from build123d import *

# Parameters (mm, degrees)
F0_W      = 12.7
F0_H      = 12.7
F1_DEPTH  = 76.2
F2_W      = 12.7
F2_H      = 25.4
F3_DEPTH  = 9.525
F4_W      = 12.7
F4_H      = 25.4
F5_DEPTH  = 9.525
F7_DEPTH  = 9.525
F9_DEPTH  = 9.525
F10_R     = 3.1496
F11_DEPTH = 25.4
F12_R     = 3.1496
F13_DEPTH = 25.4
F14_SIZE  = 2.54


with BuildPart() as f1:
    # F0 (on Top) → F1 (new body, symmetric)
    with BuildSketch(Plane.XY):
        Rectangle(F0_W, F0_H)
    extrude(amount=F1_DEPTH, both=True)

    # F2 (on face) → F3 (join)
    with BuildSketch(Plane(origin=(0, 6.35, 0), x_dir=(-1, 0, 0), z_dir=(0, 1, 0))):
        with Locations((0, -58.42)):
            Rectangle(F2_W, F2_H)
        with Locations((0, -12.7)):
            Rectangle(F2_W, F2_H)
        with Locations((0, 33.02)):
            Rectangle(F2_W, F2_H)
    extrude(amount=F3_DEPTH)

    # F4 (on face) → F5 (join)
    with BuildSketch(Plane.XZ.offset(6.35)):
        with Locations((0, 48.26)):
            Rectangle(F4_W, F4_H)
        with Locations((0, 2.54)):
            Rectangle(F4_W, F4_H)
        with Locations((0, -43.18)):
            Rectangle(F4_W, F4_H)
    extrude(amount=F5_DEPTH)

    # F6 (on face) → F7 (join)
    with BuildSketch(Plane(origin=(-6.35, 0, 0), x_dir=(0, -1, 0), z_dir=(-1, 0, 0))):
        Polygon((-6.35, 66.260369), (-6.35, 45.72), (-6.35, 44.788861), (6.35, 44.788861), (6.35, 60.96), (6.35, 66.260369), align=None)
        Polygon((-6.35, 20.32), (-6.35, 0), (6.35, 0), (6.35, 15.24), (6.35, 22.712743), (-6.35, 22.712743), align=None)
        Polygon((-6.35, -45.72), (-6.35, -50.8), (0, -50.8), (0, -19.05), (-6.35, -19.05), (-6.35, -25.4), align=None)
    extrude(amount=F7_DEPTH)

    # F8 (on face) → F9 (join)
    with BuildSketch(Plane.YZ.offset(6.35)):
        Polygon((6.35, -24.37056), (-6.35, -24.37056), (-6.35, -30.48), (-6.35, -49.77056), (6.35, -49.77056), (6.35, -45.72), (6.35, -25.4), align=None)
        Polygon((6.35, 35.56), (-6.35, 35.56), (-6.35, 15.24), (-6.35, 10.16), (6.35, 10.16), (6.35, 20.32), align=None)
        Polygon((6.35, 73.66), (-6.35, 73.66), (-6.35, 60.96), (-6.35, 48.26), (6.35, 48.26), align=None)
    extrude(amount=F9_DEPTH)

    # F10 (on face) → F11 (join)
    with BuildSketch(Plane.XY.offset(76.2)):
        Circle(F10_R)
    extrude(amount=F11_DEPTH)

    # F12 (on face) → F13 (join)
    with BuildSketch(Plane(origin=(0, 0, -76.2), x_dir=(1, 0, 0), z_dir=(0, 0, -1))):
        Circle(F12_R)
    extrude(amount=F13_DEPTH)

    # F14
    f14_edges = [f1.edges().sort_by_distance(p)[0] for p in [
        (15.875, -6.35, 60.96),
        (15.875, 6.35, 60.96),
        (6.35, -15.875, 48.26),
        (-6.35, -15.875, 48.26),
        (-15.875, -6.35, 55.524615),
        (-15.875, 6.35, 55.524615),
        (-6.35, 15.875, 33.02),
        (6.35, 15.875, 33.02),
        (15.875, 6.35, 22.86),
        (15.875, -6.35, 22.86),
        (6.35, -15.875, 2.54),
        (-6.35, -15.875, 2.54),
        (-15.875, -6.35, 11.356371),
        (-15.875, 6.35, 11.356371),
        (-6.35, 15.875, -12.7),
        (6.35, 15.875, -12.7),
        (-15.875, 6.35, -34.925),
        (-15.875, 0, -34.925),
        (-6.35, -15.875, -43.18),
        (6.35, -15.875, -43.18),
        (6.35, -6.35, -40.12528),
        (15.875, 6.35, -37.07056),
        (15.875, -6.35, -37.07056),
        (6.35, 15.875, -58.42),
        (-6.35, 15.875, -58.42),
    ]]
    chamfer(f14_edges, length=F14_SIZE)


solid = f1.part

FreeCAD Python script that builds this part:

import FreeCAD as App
import Part
import Sketcher
from FreeCAD import Vector
Q = App.Units.Quantity


def edges_at(feature, points):
    """Names of the edges that pass closest to the given points."""
    edges = feature.Shape.Edges
    near = lambda p: min(range(len(edges)), key=lambda i: edges[i].distToShape(Part.Vertex(*p))[0])
    return sorted({f"Edge{near(p) + 1}" for p in points})

doc = App.newDocument("Part")
body = doc.addObject("PartDesign::Body", "Body")

# Sketch on XY plane
sketch1 = doc.addObject("Sketcher::SketchObject", "Sketch")
body.addObject(sketch1)
sketch1.AttachmentSupport = (doc.XY_Plane, [""])
sketch1.MapMode = "FlatFace"
sketch1.addGeometry(Part.LineSegment(Vector(-6, 6, 0), Vector(-6, -6, 0)), False)
sketch1.addGeometry(Part.LineSegment(Vector(-6, -6, 0), Vector(6, -6, 0)), False)
sketch1.addGeometry(Part.LineSegment(Vector(6, -6, 0), Vector(6, 6, 0)), False)
sketch1.addGeometry(Part.LineSegment(Vector(6, 6, 0), Vector(-6, 6, 0)), False)
sketch1.addConstraint(Sketcher.Constraint("Coincident", 0, 2, 1, 1))
sketch1.addConstraint(Sketcher.Constraint("Coincident", 1, 2, 2, 1))
sketch1.addConstraint(Sketcher.Constraint("Coincident", 2, 2, 3, 1))
sketch1.addConstraint(Sketcher.Constraint("Coincident", 3, 2, 0, 1))
sketch1.addConstraint(Sketcher.Constraint("Vertical", 0))
sketch1.addConstraint(Sketcher.Constraint("Horizontal", 1))
sketch1.addConstraint(Sketcher.Constraint("Vertical", 2))
sketch1.addConstraint(Sketcher.Constraint("Horizontal", 3))
sketch1.addConstraint(Sketcher.Constraint("Symmetric", 0, 2, 2, 2, -1, 1))
sketch1.addConstraint(Sketcher.Constraint("Equal", 3, 0))
sketch1.addConstraint(Sketcher.Constraint("DistanceX", 1, 1, 1, 2, Q("0.5 in")))
pad1 = doc.addObject("PartDesign::Pad", "Pad")
body.addObject(pad1)
pad1.Profile = sketch1
pad1.Length = Q("6 in")
pad1.Midplane = True

# Sketch on XZ plane
sketch2 = doc.addObject("Sketcher::SketchObject", "Sketch001")
body.addObject(sketch2)
sketch2.AttachmentSupport = (doc.XZ_Plane, [""])
sketch2.MapMode = "FlatFace"
sketch2.AttachmentOffset = App.Placement(Vector(0, 0, -0.25 * 25.4), App.Rotation())
sketch2.addGeometry(Part.LineSegment(Vector(6, -46, 0), Vector(6, -71, 0)), False)
sketch2.addGeometry(Part.LineSegment(Vector(6, -71, 0), Vector(-6, -71, 0)), False)
sketch2.addGeometry(Part.LineSegment(Vector(-6, -71, 0), Vector(-6, -46, 0)), False)
sketch2.addGeometry(Part.LineSegment(Vector(-6, -46, 0), Vector(6, -46, 0)), False)
sketch2.addGeometry(Part.LineSegment(Vector(6, 0, 0), Vector(6, -25, 0)), False)
sketch2.addGeometry(Part.LineSegment(Vector(6, -25, 0), Vector(-6, -25, 0)), False)
sketch2.addGeometry(Part.LineSegment(Vector(-6, -25, 0), Vector(-6, 0, 0)), False)
sketch2.addGeometry(Part.LineSegment(Vector(-6, 0, 0), Vector(6, 0, 0)), False)
sketch2.addGeometry(Part.LineSegment(Vector(6, 46, 0), Vector(6, 20, 0)), False)
sketch2.addGeometry(Part.LineSegment(Vector(6, 20, 0), Vector(-6, 20, 0)), False)
sketch2.addGeometry(Part.LineSegment(Vector(-6, 20, 0), Vector(-6, 46, 0)), False)
sketch2.addGeometry(Part.LineSegment(Vector(-6, 46, 0), Vector(6, 46, 0)), False)
sketch2.addConstraint(Sketcher.Constraint("Coincident", 0, 2, 1, 1))
sketch2.addConstraint(Sketcher.Constraint("Coincident", 1, 2, 2, 1))
sketch2.addConstraint(Sketcher.Constraint("Coincident", 2, 2, 3, 1))
sketch2.addConstraint(Sketcher.Constraint("Coincident", 3, 2, 0, 1))
sketch2.addConstraint(Sketcher.Constraint("Coincident", 4, 2, 5, 1))
sketch2.addConstraint(Sketcher.Constraint("Coincident", 5, 2, 6, 1))
sketch2.addConstraint(Sketcher.Constraint("Coincident", 6, 2, 7, 1))
sketch2.addConstraint(Sketcher.Constraint("Coincident", 7, 2, 4, 1))
sketch2.addConstraint(Sketcher.Constraint("Coincident", 8, 2, 9, 1))
sketch2.addConstraint(Sketcher.Constraint("Coincident", 9, 2, 10, 1))
sketch2.addConstraint(Sketcher.Constraint("Coincident", 10, 2, 11, 1))
sketch2.addConstraint(Sketcher.Constraint("Coincident", 11, 2, 8, 1))
sketch2.addConstraint(Sketcher.Constraint("Vertical", 0))
sketch2.addConstraint(Sketcher.Constraint("Horizontal", 1))
sketch2.addConstraint(Sketcher.Constraint("Vertical", 2))
sketch2.addConstraint(Sketcher.Constraint("Horizontal", 3))
sketch2.addConstraint(Sketcher.Constraint("Vertical", 4))
sketch2.addConstraint(Sketcher.Constraint("Horizontal", 5))
sketch2.addConstraint(Sketcher.Constraint("Vertical", 6))
sketch2.addConstraint(Sketcher.Constraint("Horizontal", 7))
sketch2.addConstraint(Sketcher.Constraint("Vertical", 8))
sketch2.addConstraint(Sketcher.Constraint("Horizontal", 9))
sketch2.addConstraint(Sketcher.Constraint("Vertical", 10))
sketch2.addConstraint(Sketcher.Constraint("Horizontal", 11))
sketch2.addConstraint(Sketcher.Constraint("Symmetric", 6, 2, 7, 2, -1, 1))
sketch2.addConstraint(Sketcher.Constraint("Symmetric", 3, 2, 10, 2, -1, 1))
sketch2.addConstraint(Sketcher.Constraint("Vertical", 3, 2, 4, 2))
sketch2.addConstraint(Sketcher.Constraint("Vertical", 2, 2, 5, 2))
sketch2.addConstraint(Sketcher.Constraint("Vertical", 7, 2, 8, 2))
sketch2.addConstraint(Sketcher.Constraint("Equal", 2, 4))
sketch2.addConstraint(Sketcher.Constraint("Equal", 6, 8))
sketch2.addConstraint(Sketcher.Constraint("DistanceY", 0, 2, 0, 1, Q("1 in")))
sketch2.addConstraint(Sketcher.Constraint("DistanceX", 1, 2, 1, 1, Q("0.5 in")))
sketch2.addConstraint(Sketcher.Constraint("DistanceY", 0, 2, -1, 1, Q("2.8 in")))
pad2 = doc.addObject("PartDesign::Pad", "Pad001")
body.addObject(pad2)
pad2.Profile = sketch2
pad2.Length = Q("0.375 in")
pad2.Reversed = True

# Sketch on XZ plane
sketch3 = doc.addObject("Sketcher::SketchObject", "Sketch002")
body.addObject(sketch3)
sketch3.AttachmentSupport = (doc.XZ_Plane, [""])
sketch3.MapMode = "FlatFace"
sketch3.AttachmentOffset = App.Placement(Vector(0, 0, 0.25 * 25.4), App.Rotation())
sketch3.addGeometry(Part.LineSegment(Vector(-6, 61, 0), Vector(-6, 36, 0)), False)
sketch3.addGeometry(Part.LineSegment(Vector(-6, 36, 0), Vector(6, 36, 0)), False)
sketch3.addGeometry(Part.LineSegment(Vector(6, 36, 0), Vector(6, 61, 0)), False)
sketch3.addGeometry(Part.LineSegment(Vector(6, 61, 0), Vector(-6, 61, 0)), False)
sketch3.addGeometry(Part.LineSegment(Vector(-6, 15, 0), Vector(-6, -10, 0)), False)
sketch3.addGeometry(Part.LineSegment(Vector(-6, -10, 0), Vector(6, -10, 0)), False)
sketch3.addGeometry(Part.LineSegment(Vector(6, -10, 0), Vector(6, 15, 0)), False)
sketch3.addGeometry(Part.LineSegment(Vector(6, 15, 0), Vector(-6, 15, 0)), False)
sketch3.addGeometry(Part.LineSegment(Vector(-6, -30, 0), Vector(-6, -56, 0)), False)
sketch3.addGeometry(Part.LineSegment(Vector(-6, -56, 0), Vector(6, -56, 0)), False)
sketch3.addGeometry(Part.LineSegment(Vector(6, -56, 0), Vector(6, -30, 0)), False)
sketch3.addGeometry(Part.LineSegment(Vector(6, -30, 0), Vector(-6, -30, 0)), False)
sketch3.addConstraint(Sketcher.Constraint("Coincident", 0, 2, 1, 1))
sketch3.addConstraint(Sketcher.Constraint("Coincident", 1, 2, 2, 1))
sketch3.addConstraint(Sketcher.Constraint("Coincident", 2, 2, 3, 1))
sketch3.addConstraint(Sketcher.Constraint("Coincident", 3, 2, 0, 1))
sketch3.addConstraint(Sketcher.Constraint("Coincident", 4, 2, 5, 1))
sketch3.addConstraint(Sketcher.Constraint("Coincident", 5, 2, 6, 1))
sketch3.addConstraint(Sketcher.Constraint("Coincident", 6, 2, 7, 1))
sketch3.addConstraint(Sketcher.Constraint("Coincident", 7, 2, 4, 1))
sketch3.addConstraint(Sketcher.Constraint("Coincident", 8, 2, 9, 1))
sketch3.addConstraint(Sketcher.Constraint("Coincident", 9, 2, 10, 1))
sketch3.addConstraint(Sketcher.Constraint("Coincident", 10, 2, 11, 1))
sketch3.addConstraint(Sketcher.Constraint("Coincident", 11, 2, 8, 1))
sketch3.addConstraint(Sketcher.Constraint("Vertical", 0))
sketch3.addConstraint(Sketcher.Constraint("Horizontal", 1))
sketch3.addConstraint(Sketcher.Constraint("Vertical", 2))
sketch3.addConstraint(Sketcher.Constraint("Horizontal", 3))
sketch3.addConstraint(Sketcher.Constraint("Vertical", 4))
sketch3.addConstraint(Sketcher.Constraint("Horizontal", 5))
sketch3.addConstraint(Sketcher.Constraint("Vertical", 6))
sketch3.addConstraint(Sketcher.Constraint("Horizontal", 7))
sketch3.addConstraint(Sketcher.Constraint("Vertical", 8))
sketch3.addConstraint(Sketcher.Constraint("Horizontal", 9))
sketch3.addConstraint(Sketcher.Constraint("Vertical", 10))
sketch3.addConstraint(Sketcher.Constraint("Horizontal", 11))
sketch3.addConstraint(Sketcher.Constraint("Vertical", 3, 2, 4, 2))
sketch3.addConstraint(Sketcher.Constraint("Vertical", 2, 2, 5, 2))
sketch3.addConstraint(Sketcher.Constraint("Vertical", 7, 2, 8, 2))
sketch3.addConstraint(Sketcher.Constraint("Vertical", 6, 2, 9, 2))
sketch3.addConstraint(Sketcher.Constraint("Equal", 2, 4))
sketch3.addConstraint(Sketcher.Constraint("Equal", 6, 8))
sketch3.addConstraint(Sketcher.Constraint("DistanceY", 0, 2, 0, 1, Q("1 in")))
sketch3.addConstraint(Sketcher.Constraint("DistanceX", 1, 1, 1, 2, Q("0.5 in")))
sketch3.addConstraint(Sketcher.Constraint("DistanceY", -1, 1, 0, 2, Q("1.4 in")))
sketch3.addConstraint(Sketcher.Constraint("DistanceY", 4, 2, -1, 1, Q("0.4 in")))
sketch3.addConstraint(Sketcher.Constraint("DistanceY", 8, 2, -1, 1, Q("2.2 in")))
sketch3.addConstraint(Sketcher.Constraint("DistanceX", 0, 2, -1, 1, Q("0.25 in")))
pad3 = doc.addObject("PartDesign::Pad", "Pad002")
body.addObject(pad3)
pad3.Profile = sketch3
pad3.Length = Q("0.375 in")

# Sketch on YZ plane
sketch4 = doc.addObject("Sketcher::SketchObject", "Sketch003")
body.addObject(sketch4)
sketch4.AttachmentSupport = (doc.YZ_Plane, [""])
sketch4.MapMode = "FlatFace"
sketch4.AttachmentOffset = App.Placement(Vector(0, 0, -0.25 * 25.4), App.Rotation())
sketch4.addGeometry(Part.LineSegment(Vector(6, 66, 0), Vector(6, 45, 0)), False)
sketch4.addGeometry(Part.LineSegment(Vector(6, 45, 0), Vector(-6, 45, 0)), False)
sketch4.addGeometry(Part.LineSegment(Vector(-6, 45, 0), Vector(-6, 66, 0)), False)
sketch4.addGeometry(Part.LineSegment(Vector(-6, 66, 0), Vector(6, 66, 0)), False)
sketch4.addGeometry(Part.LineSegment(Vector(6, 0, 0), Vector(-6, 0, 0)), False)
sketch4.addGeometry(Part.LineSegment(Vector(-6, 0, 0), Vector(-6, 23, 0)), False)
sketch4.addGeometry(Part.LineSegment(Vector(-6, 23, 0), Vector(6, 23, 0)), False)
sketch4.addGeometry(Part.LineSegment(Vector(6, 23, 0), Vector(6, 0, 0)), False)
sketch4.addGeometry(Part.LineSegment(Vector(6, -51, 0), Vector(0, -51, 0)), False)
sketch4.addGeometry(Part.LineSegment(Vector(0, -51, 0), Vector(0, -19, 0)), False)
sketch4.addGeometry(Part.LineSegment(Vector(0, -19, 0), Vector(6, -19, 0)), False)
sketch4.addGeometry(Part.LineSegment(Vector(6, -19, 0), Vector(6, -51, 0)), False)
sketch4.addConstraint(Sketcher.Constraint("Coincident", 0, 2, 1, 1))
sketch4.addConstraint(Sketcher.Constraint("Coincident", 1, 2, 2, 1))
sketch4.addConstraint(Sketcher.Constraint("Coincident", 2, 2, 3, 1))
sketch4.addConstraint(Sketcher.Constraint("Coincident", 3, 2, 0, 1))
sketch4.addConstraint(Sketcher.Constraint("Coincident", 4, 2, 5, 1))
sketch4.addConstraint(Sketcher.Constraint("Coincident", 5, 2, 6, 1))
sketch4.addConstraint(Sketcher.Constraint("Coincident", 6, 2, 7, 1))
sketch4.addConstraint(Sketcher.Constraint("Coincident", 7, 2, 4, 1))
sketch4.addConstraint(Sketcher.Constraint("Coincident", 8, 2, 9, 1))
sketch4.addConstraint(Sketcher.Constraint("Coincident", 9, 2, 10, 1))
sketch4.addConstraint(Sketcher.Constraint("Coincident", 10, 2, 11, 1))
sketch4.addConstraint(Sketcher.Constraint("Coincident", 11, 2, 8, 1))
sketch4.addConstraint(Sketcher.Constraint("Vertical", 0))
sketch4.addConstraint(Sketcher.Constraint("Horizontal", 1))
sketch4.addConstraint(Sketcher.Constraint("Vertical", 2))
sketch4.addConstraint(Sketcher.Constraint("Horizontal", 3))
sketch4.addConstraint(Sketcher.Constraint("Horizontal", 4))
sketch4.addConstraint(Sketcher.Constraint("Vertical", 5))
sketch4.addConstraint(Sketcher.Constraint("Horizontal", 6))
sketch4.addConstraint(Sketcher.Constraint("Vertical", 7))
sketch4.addConstraint(Sketcher.Constraint("Horizontal", 8))
sketch4.addConstraint(Sketcher.Constraint("Vertical", 9))
sketch4.addConstraint(Sketcher.Constraint("Horizontal", 10))
sketch4.addConstraint(Sketcher.Constraint("Vertical", 11))
sketch4.addConstraint(Sketcher.Constraint("Symmetric", 4, 2, 7, 2, -1, 1))
sketch4.addConstraint(Sketcher.Constraint("PointOnObject", 8, 2, -2))
sketch4.addConstraint(Sketcher.Constraint("Vertical", 2, 2, 4, 2))
sketch4.addConstraint(Sketcher.Constraint("Vertical", 3, 2, 6, 2))
sketch4.addConstraint(Sketcher.Constraint("Vertical", 7, 2, 10, 2))
sketch4.addConstraint(Sketcher.Constraint("DistanceX", 1, 2, 1, 1, Q("0.5 in")))
sketch4.addConstraint(Sketcher.Constraint("DistanceY", 8, 2, -1, 1, Q("2 in")))
sketch4.addConstraint(Sketcher.Constraint("DistanceY", 9, 1, 9, 2, Q("1.25 in")))
sketch4.addConstraint(Sketcher.Constraint("DistanceY", 0, 2, 0, 1, 21.471508))
sketch4.addConstraint(Sketcher.Constraint("DistanceY", 5, 1, 5, 2, 22.712743))
sketch4.addConstraint(Sketcher.Constraint("DistanceY", -1, 1, 0, 2, 44.788861))
pad4 = doc.addObject("PartDesign::Pad", "Pad003")
body.addObject(pad4)
pad4.Profile = sketch4
pad4.Length = Q("0.375 in")
pad4.Reversed = True

# Sketch on YZ plane
sketch5 = doc.addObject("Sketcher::SketchObject", "Sketch004")
body.addObject(sketch5)
sketch5.AttachmentSupport = (doc.YZ_Plane, [""])
sketch5.MapMode = "FlatFace"
sketch5.AttachmentOffset = App.Placement(Vector(0, 0, 0.25 * 25.4), App.Rotation())
sketch5.addGeometry(Part.LineSegment(Vector(6, -24, 0), Vector(-6, -24, 0)), False)
sketch5.addGeometry(Part.LineSegment(Vector(-6, -24, 0), Vector(-6, -50, 0)), False)
sketch5.addGeometry(Part.LineSegment(Vector(-6, -50, 0), Vector(6, -50, 0)), False)
sketch5.addGeometry(Part.LineSegment(Vector(6, -50, 0), Vector(6, -24, 0)), False)
sketch5.addGeometry(Part.LineSegment(Vector(6, 36, 0), Vector(-6, 36, 0)), False)
sketch5.addGeometry(Part.LineSegment(Vector(-6, 36, 0), Vector(-6, 10, 0)), False)
sketch5.addGeometry(Part.LineSegment(Vector(-6, 10, 0), Vector(6, 10, 0)), False)
sketch5.addGeometry(Part.LineSegment(Vector(6, 10, 0), Vector(6, 36, 0)), False)
sketch5.addGeometry(Part.LineSegment(Vector(6, 74, 0), Vector(-6, 74, 0)), False)
sketch5.addGeometry(Part.LineSegment(Vector(-6, 74, 0), Vector(-6, 48, 0)), False)
sketch5.addGeometry(Part.LineSegment(Vector(-6, 48, 0), Vector(6, 48, 0)), False)
sketch5.addGeometry(Part.LineSegment(Vector(6, 48, 0), Vector(6, 74, 0)), False)
sketch5.addConstraint(Sketcher.Constraint("Coincident", 0, 2, 1, 1))
sketch5.addConstraint(Sketcher.Constraint("Coincident", 1, 2, 2, 1))
sketch5.addConstraint(Sketcher.Constraint("Coincident", 2, 2, 3, 1))
sketch5.addConstraint(Sketcher.Constraint("Coincident", 3, 2, 0, 1))
sketch5.addConstraint(Sketcher.Constraint("Coincident", 4, 2, 5, 1))
sketch5.addConstraint(Sketcher.Constraint("Coincident", 5, 2, 6, 1))
sketch5.addConstraint(Sketcher.Constraint("Coincident", 6, 2, 7, 1))
sketch5.addConstraint(Sketcher.Constraint("Coincident", 7, 2, 4, 1))
sketch5.addConstraint(Sketcher.Constraint("Coincident", 8, 2, 9, 1))
sketch5.addConstraint(Sketcher.Constraint("Coincident", 9, 2, 10, 1))
sketch5.addConstraint(Sketcher.Constraint("Coincident", 10, 2, 11, 1))
sketch5.addConstraint(Sketcher.Constraint("Coincident", 11, 2, 8, 1))
sketch5.addConstraint(Sketcher.Constraint("Horizontal", 0))
sketch5.addConstraint(Sketcher.Constraint("Vertical", 1))
sketch5.addConstraint(Sketcher.Constraint("Horizontal", 2))
sketch5.addConstraint(Sketcher.Constraint("Vertical", 3))
sketch5.addConstraint(Sketcher.Constraint("Horizontal", 4))
sketch5.addConstraint(Sketcher.Constraint("Vertical", 5))
sketch5.addConstraint(Sketcher.Constraint("Horizontal", 6))
sketch5.addConstraint(Sketcher.Constraint("Vertical", 7))
sketch5.addConstraint(Sketcher.Constraint("Horizontal", 8))
sketch5.addConstraint(Sketcher.Constraint("Vertical", 9))
sketch5.addConstraint(Sketcher.Constraint("Horizontal", 10))
sketch5.addConstraint(Sketcher.Constraint("Vertical", 11))
sketch5.addConstraint(Sketcher.Constraint("Vertical", 1, 2, 4, 2))
sketch5.addConstraint(Sketcher.Constraint("Vertical", 3, 2, 6, 2))
sketch5.addConstraint(Sketcher.Constraint("Vertical", 5, 2, 8, 2))
sketch5.addConstraint(Sketcher.Constraint("Vertical", 7, 2, 10, 2))
sketch5.addConstraint(Sketcher.Constraint("Equal", 3, 5))
sketch5.addConstraint(Sketcher.Constraint("Equal", 7, 9))
sketch5.addConstraint(Sketcher.Constraint("DistanceY", 1, 2, 1, 1, Q("1 in")))
sketch5.addConstraint(Sketcher.Constraint("DistanceX", 0, 2, 0, 1, Q("0.5 in")))
sketch5.addConstraint(Sketcher.Constraint("DistanceY", -1, 1, 4, 2, Q("1.4 in")))
sketch5.addConstraint(Sketcher.Constraint("DistanceY", -1, 1, 8, 2, Q("2.9 in")))
sketch5.addConstraint(Sketcher.Constraint("DistanceX", 0, 2, -1, 1, Q("0.25 in")))
sketch5.addConstraint(Sketcher.Constraint("DistanceY", 0, 2, -1, 1, 24.37056))
pad5 = doc.addObject("PartDesign::Pad", "Pad004")
body.addObject(pad5)
pad5.Profile = sketch5
pad5.Length = Q("0.375 in")

# Sketch on XY plane
sketch6 = doc.addObject("Sketcher::SketchObject", "Sketch005")
body.addObject(sketch6)
sketch6.AttachmentSupport = (doc.XY_Plane, [""])
sketch6.MapMode = "FlatFace"
sketch6.AttachmentOffset = App.Placement(Vector(0, 0, 3 * 25.4), App.Rotation())
sketch6.addGeometry(Part.Circle(Vector(0, 0, 0), Vector(0, 0, 1), 3.1), False)
sketch6.addConstraint(Sketcher.Constraint("Coincident", 0, 3, -1, 1))
sketch6.addConstraint(Sketcher.Constraint("Diameter", 0, Q("0.248 in")))
pad6 = doc.addObject("PartDesign::Pad", "Pad005")
body.addObject(pad6)
pad6.Profile = sketch6
pad6.Length = Q("1 in")

# Sketch on XY plane
sketch7 = doc.addObject("Sketcher::SketchObject", "Sketch006")
body.addObject(sketch7)
sketch7.AttachmentSupport = (doc.XY_Plane, [""])
sketch7.MapMode = "FlatFace"
sketch7.AttachmentOffset = App.Placement(Vector(0, 0, -3 * 25.4), App.Rotation())
sketch7.addGeometry(Part.Circle(Vector(0, 0, 0), Vector(0, 0, 1), 3.1), False)
sketch7.addConstraint(Sketcher.Constraint("Coincident", 0, 3, -1, 1))
sketch7.addConstraint(Sketcher.Constraint("Diameter", 0, Q("0.248 in")))
pad7 = doc.addObject("PartDesign::Pad", "Pad006")
body.addObject(pad7)
pad7.Profile = sketch7
pad7.Length = Q("1 in")
pad7.Reversed = True
doc.recompute()

chamfer = doc.addObject("PartDesign::Chamfer", "Chamfer")
body.addObject(chamfer)
chamfer.Base = (pad7, edges_at(pad7, [
    (15.875, -6.35, 60.96),
    (15.875, 6.35, 60.96),
    (6.35, -15.875, 48.26),
    (-6.35, -15.875, 48.26),
    (-15.875, -6.35, 55.525),
    (-15.875, 6.35, 55.525),
    (-6.35, 15.875, 33.02),
    (6.35, 15.875, 33.02),
    (15.875, 6.35, 22.86),
    (15.875, -6.35, 22.86),
    (6.35, -15.875, 2.54),
    (-6.35, -15.875, 2.54),
    (-15.875, -6.35, 11.356),
    (-15.875, 6.35, 11.356),
    (-6.35, 15.875, -12.7),
    (6.35, 15.875, -12.7),
    (-15.875, 6.35, -34.925),
    (-15.875, 0, -34.925),
    (-6.35, -15.875, -43.18),
    (6.35, -15.875, -43.18),
    (6.35, -6.35, -40.125),
    (15.875, 6.35, -37.071),
    (15.875, -6.35, -37.071),
    (6.35, 15.875, -58.42),
    (-6.35, 15.875, -58.42),
]))
chamfer.Size = Q("0.1 in")

doc.recompute()
